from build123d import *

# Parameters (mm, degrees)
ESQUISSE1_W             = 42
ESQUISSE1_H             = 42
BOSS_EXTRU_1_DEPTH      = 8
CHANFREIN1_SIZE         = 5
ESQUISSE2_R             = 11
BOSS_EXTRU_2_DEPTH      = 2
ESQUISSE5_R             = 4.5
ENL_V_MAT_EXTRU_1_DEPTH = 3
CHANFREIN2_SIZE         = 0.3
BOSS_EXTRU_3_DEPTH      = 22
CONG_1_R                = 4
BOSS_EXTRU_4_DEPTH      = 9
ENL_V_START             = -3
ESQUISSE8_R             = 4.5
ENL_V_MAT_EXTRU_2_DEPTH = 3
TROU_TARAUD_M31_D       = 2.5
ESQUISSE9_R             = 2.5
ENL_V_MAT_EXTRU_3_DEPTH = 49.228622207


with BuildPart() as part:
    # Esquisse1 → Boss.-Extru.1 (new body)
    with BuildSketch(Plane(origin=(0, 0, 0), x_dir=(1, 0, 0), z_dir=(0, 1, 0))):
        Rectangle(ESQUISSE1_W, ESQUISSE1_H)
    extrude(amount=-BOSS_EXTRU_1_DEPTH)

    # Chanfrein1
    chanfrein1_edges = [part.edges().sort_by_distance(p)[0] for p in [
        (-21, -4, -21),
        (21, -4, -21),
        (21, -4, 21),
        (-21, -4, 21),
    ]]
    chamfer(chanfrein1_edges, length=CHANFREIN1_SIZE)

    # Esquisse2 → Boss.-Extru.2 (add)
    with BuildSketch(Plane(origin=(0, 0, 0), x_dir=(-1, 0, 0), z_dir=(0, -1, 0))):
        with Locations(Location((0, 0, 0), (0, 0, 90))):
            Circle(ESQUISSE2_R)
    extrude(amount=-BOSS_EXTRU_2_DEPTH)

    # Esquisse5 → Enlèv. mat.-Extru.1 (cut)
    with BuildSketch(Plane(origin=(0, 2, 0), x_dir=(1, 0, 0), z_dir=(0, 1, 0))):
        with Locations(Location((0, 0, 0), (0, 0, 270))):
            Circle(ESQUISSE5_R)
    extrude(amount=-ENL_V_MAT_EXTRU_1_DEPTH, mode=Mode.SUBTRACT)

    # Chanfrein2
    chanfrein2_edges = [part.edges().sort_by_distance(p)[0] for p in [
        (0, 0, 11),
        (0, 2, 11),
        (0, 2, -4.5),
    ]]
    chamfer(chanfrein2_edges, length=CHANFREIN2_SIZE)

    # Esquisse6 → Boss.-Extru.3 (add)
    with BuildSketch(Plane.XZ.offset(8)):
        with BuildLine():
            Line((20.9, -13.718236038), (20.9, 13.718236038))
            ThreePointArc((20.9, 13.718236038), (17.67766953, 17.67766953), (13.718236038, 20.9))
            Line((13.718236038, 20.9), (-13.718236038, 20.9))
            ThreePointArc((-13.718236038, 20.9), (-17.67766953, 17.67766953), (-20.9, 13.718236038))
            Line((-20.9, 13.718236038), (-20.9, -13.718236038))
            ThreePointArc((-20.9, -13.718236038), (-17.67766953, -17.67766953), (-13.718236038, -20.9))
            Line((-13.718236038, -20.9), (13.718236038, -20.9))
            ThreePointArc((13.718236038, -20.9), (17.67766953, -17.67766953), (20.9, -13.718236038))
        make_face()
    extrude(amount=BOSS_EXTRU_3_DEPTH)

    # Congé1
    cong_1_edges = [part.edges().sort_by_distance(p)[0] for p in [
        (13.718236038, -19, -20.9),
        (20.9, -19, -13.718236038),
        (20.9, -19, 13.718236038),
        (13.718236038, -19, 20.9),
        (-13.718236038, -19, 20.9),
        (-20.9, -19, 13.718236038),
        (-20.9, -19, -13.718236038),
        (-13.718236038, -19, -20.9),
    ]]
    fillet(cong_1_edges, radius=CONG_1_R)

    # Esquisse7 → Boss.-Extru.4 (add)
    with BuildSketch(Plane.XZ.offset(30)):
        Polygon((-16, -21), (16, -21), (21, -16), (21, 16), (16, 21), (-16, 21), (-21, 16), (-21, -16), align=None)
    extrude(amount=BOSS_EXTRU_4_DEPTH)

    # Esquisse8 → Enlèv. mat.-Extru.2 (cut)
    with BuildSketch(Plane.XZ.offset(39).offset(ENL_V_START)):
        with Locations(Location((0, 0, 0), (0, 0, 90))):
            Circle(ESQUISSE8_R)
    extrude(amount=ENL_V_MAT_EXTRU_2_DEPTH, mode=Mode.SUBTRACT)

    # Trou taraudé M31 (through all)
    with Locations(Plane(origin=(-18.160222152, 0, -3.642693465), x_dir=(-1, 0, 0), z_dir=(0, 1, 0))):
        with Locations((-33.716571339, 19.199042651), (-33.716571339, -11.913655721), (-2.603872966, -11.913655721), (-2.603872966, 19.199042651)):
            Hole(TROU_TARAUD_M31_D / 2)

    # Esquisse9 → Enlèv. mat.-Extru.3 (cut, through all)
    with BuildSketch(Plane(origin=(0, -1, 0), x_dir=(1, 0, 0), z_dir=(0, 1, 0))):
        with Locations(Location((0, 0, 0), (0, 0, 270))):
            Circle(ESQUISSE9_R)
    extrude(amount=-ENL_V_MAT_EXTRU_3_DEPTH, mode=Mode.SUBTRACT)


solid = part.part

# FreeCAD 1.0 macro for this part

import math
import FreeCAD as App
import Part
import Sketcher
Q = App.Units.Quantity


def edges_at(feature, points):
    """Names of the edges that pass closest to the given points."""
    edges = feature.Shape.Edges
    near = lambda p: min(range(len(edges)), key=lambda i: edges[i].distToShape(Part.Vertex(*p))[0])
    return sorted({f"Edge{near(p) + 1}" for p in points})


def add_polygon(sketch, points):
    """Adds a closed chain of lines whose ends are joined by coincident constraints."""
    first, n = sketch.GeometryCount, len(points)
    for a, b in zip(points, points[1:] + points[:1]):
        sketch.addGeometry(Part.LineSegment(App.Vector(*a, 0), App.Vector(*b, 0)), False)
    for i in range(n):
        sketch.addConstraint(Sketcher.Constraint("Coincident", first + i, 2, first + (i + 1) % n, 1))

doc = App.newDocument("Part")
body = doc.addObject("PartDesign::Body", "Body")

sketch1 = body.newObject("Sketcher::SketchObject", "Sketch")
sketch1.AttachmentSupport = (doc.getObject("XZ_Plane"), [""])
sketch1.MapMode = "FlatFace"
add_polygon(sketch1, [(-21, -21), (-21, 21), (21, 21), (21, -21)])
sketch1.addConstraint([
    Sketcher.Constraint("Vertical", 0),
    Sketcher.Constraint("Horizontal", 1),
    Sketcher.Constraint("Vertical", 2),
    Sketcher.Constraint("Horizontal", 3),
    Sketcher.Constraint("Symmetric", 0, 2, 2, 2, -1, 1),
    Sketcher.Constraint("Equal", 3, 0),
    Sketcher.Constraint("DistanceX", 1, 1, 1, 2, Q("42 mm")),
])
pad1 = body.newObject("PartDesign::Pad", "Pad")
pad1.Profile = sketch1
pad1.Length = 8
doc.recompute()

chamfer = body.newObject("PartDesign::Chamfer", "Chamfer")
chamfer.Base = (pad1, edges_at(pad1, [
    (-21, -4, -21),
    (21, -4, -21),
    (21, -4, 21),
    (-21, -4, 21),
]))
chamfer.Size = 5

sketch2 = body.newObject("Sketcher::SketchObject", "Sketch001")
sketch2.AttachmentSupport = (doc.getObject("XZ_Plane"), [""])
sketch2.MapMode = "FlatFace"
sketch2.addGeometry(Part.Circle(App.Vector(0, 0, 0), App.Vector(0, 0, 1), 11), False)
sketch2.addConstraint([
    Sketcher.Constraint("Coincident", 0, 3, -1, 1),
    Sketcher.Constraint("Diameter", 0, Q("22 mm")),
])
pad2 = body.newObject("PartDesign::Pad", "Pad001")
pad2.Profile = sketch2
pad2.Length = 2
pad2.Reversed = True

sketch3 = body.newObject("Sketcher::SketchObject", "Sketch002")
sketch3.AttachmentSupport = (doc.getObject("XZ_Plane"), [""])
sketch3.MapMode = "FlatFace"
sketch3.AttachmentOffset = App.Placement(App.Vector(0, 0, -2), App.Rotation())
sketch3.addGeometry(Part.Circle(App.Vector(0, 0, 0), App.Vector(0, 0, 1), 4.5), False)
sketch3.addConstraint([
    Sketcher.Constraint("Coincident", 0, 3, -1, 1),
    Sketcher.Constraint("Diameter", 0, Q("9 mm")),
])
pocket1 = body.newObject("PartDesign::Pocket", "Pocket")
pocket1.Profile = sketch3
pocket1.Length = 3
pocket1.Reversed = True
doc.recompute()

chamfer2 = body.newObject("PartDesign::Chamfer", "Chamfer001")
chamfer2.Base = (pocket1, edges_at(pocket1, [(0, 0, 11), (0, 2, 11), (0, 2, -4.5)]))
chamfer2.Size = 0.3

sketch4 = body.newObject("Sketcher::SketchObject", "Sketch003")
sketch4.AttachmentSupport = (doc.getObject("XZ_Plane"), [""])
sketch4.MapMode = "FlatFace"
sketch4.AttachmentOffset = App.Placement(App.Vector(0, 0, 8), App.Rotation())
sketch4.addGeometry([
    Part.LineSegment(App.Vector(21, -14, 0), App.Vector(21, 14, 0)),
    Part.ArcOfCircle(Part.Circle(App.Vector(0, 0, 0), App.Vector(0, 0, 1), 25), math.radians(33), math.radians(57)),
    Part.LineSegment(App.Vector(14, 21, 0), App.Vector(-14, 21, 0)),
    Part.ArcOfCircle(Part.Circle(App.Vector(0, 0, 0), App.Vector(0, 0, 1), 25), math.radians(123), math.radians(147)),
    Part.LineSegment(App.Vector(-21, 14, 0), App.Vector(-21, -14, 0)),
    Part.ArcOfCircle(Part.Circle(App.Vector(0, 0, 0), App.Vector(0, 0, 1), 25), math.radians(-147), math.radians(-123)),
    Part.LineSegment(App.Vector(-14, -21, 0), App.Vector(14, -21, 0)),
    Part.ArcOfCircle(Part.Circle(App.Vector(0, 0, 0), App.Vector(0, 0, 1), 25), math.radians(-57), math.radians(-33)),
], False)
sketch4.addConstraint([
    Sketcher.Constraint("Coincident", 0, 2, 1, 1),
    Sketcher.Constraint("Coincident", 1, 2, 2, 1),
    Sketcher.Constraint("Coincident", 2, 2, 3, 1),
    Sketcher.Constraint("Coincident", 3, 2, 4, 1),
    Sketcher.Constraint("Coincident", 4, 2, 5, 1),
    Sketcher.Constraint("Coincident", 5, 2, 6, 1),
    Sketcher.Constraint("Coincident", 6, 2, 7, 1),
    Sketcher.Constraint("Coincident", 7, 2, 0, 1),
    Sketcher.Constraint("Vertical", 0),
    Sketcher.Constraint("Horizontal", 2),
    Sketcher.Constraint("Vertical", 4),
    Sketcher.Constraint("Horizontal", 6),
    Sketcher.Constraint("Coincident", 1, 3, -1, 1),
    Sketcher.Constraint("Coincident", 3, 3, -1, 1),
    Sketcher.Constraint("Coincident", 5, 3, -1, 1),
    Sketcher.Constraint("Coincident", 7, 3, -1, 1),
    Sketcher.Constraint("Equal", 1, 3),
    Sketcher.Constraint("Equal", 3, 5),
    Sketcher.Constraint("Equal", 5, 7),
    Sketcher.Constraint("Horizontal", 0, 2, 3, 2),
    Sketcher.Constraint("Vertical", 2, 2, 5, 2),
    Sketcher.Constraint("Equal", 6, 0),
    Sketcher.Constraint("Radius", 1, Q("25 mm")),
    Sketcher.Constraint("DistanceX", -1, 1, 0, 2, Q("20.9 mm")),
])
pad3 = body.newObject("PartDesign::Pad", "Pad002")
pad3.Profile = sketch4
pad3.Length = 22
doc.recompute()

fillet = body.newObject("PartDesign::Fillet", "Fillet")
fillet.Base = (pad3, edges_at(pad3, [
    (13.718, -19, -20.9),
    (20.9, -19, -13.718),
    (20.9, -19, 13.718),
    (13.718, -19, 20.9),
    (-13.718, -19, 20.9),
    (-20.9, -19, 13.718),
    (-20.9, -19, -13.718),
    (-13.718, -19, -20.9),
]))
fillet.Radius = 4

sketch5 = body.newObject("Sketcher::SketchObject", "Sketch004")
sketch5.AttachmentSupport = (doc.getObject("XZ_Plane"), [""])
sketch5.MapMode = "FlatFace"
sketch5.AttachmentOffset = App.Placement(App.Vector(0, 0, 30), App.Rotation())
add_polygon(sketch5, [(-16, -21), (16, -21), (21, -16), (21, 16), (16, 21), (-16, 21), (-21, 16), (-21, -16)])
sketch5.addConstraint([
    Sketcher.Constraint("Horizontal", 0),
    Sketcher.Constraint("Vertical", 2),
    Sketcher.Constraint("Horizontal", 4),
    Sketcher.Constraint("Vertical", 6),
    Sketcher.Constraint("Symmetric", 0, 2, 4, 2, -1, 1),
    Sketcher.Constraint("Symmetric", 1, 2, 5, 2, -1, 1),
    Sketcher.Constraint("Perpendicular", 1, 3),
    Sketcher.Constraint("Perpendicular", 5, 7),
    Sketcher.Constraint("Horizontal", 2, 2, 5, 2),
    Sketcher.Constraint("Horizontal", 1, 2, 6, 2),
    Sketcher.Constraint("Vertical", 0, 2, 3, 2),
    Sketcher.Constraint("Equal", 4, 2),
    Sketcher.Constraint("DistanceX", 0, 1, 0, 2, Q("32 mm")),
    Sketcher.Constraint("DistanceY", 0, 2, -1, 1, Q("21 mm")),
])
pad4 = body.newObject("PartDesign::Pad", "Pad003")
pad4.Profile = sketch5
pad4.Length = 9

sketch6 = body.newObject("Sketcher::SketchObject", "Sketch005")
sketch6.AttachmentSupport = (doc.getObject("XZ_Plane"), [""])
sketch6.MapMode = "FlatFace"
sketch6.AttachmentOffset = App.Placement(App.Vector(0, 0, 36), App.Rotation())
sketch6.addGeometry(Part.Circle(App.Vector(0, 0, 0), App.Vector(0, 0, 1), 4.5), False)
sketch6.addConstraint([
    Sketcher.Constraint("Coincident", 0, 3, -1, 1),
    Sketcher.Constraint("Diameter", 0, Q("9 mm")),
])
pocket2 = body.newObject("PartDesign::Pocket", "Pocket001")
pocket2.Profile = sketch6
pocket2.Length = 3
pocket2.Reversed = True

sketch7 = body.newObject("Sketcher::SketchObject", "Sketch006")
sketch7.AttachmentSupport = (doc.getObject("XZ_Plane"), [""])
sketch7.MapMode = "FlatFace"
sketch7.addGeometry([
    Part.Circle(App.Vector(15.6, 15.6, 0), App.Vector(0, 0, 1), 1.2),
    Part.Circle(App.Vector(15.6, -15.6, 0), App.Vector(0, 0, 1), 1.2),
    Part.Circle(App.Vector(-15.6, -15.6, 0), App.Vector(0, 0, 1), 1.2),
    Part.Circle(App.Vector(-15.6, 15.6, 0), App.Vector(0, 0, 1), 1.2),
], False)
sketch7.addConstraint([
    Sketcher.Constraint("Equal", 0, 1),
    Sketcher.Constraint("Equal", 1, 2),
    Sketcher.Constraint("Equal", 2, 3),
    Sketcher.Constraint("Symmetric", 0, 3, 2, 3, -1, 1),
    Sketcher.Constraint("Symmetric", 1, 3, 3, 3, -1, 1),
    Sketcher.Constraint("Symmetric", 1, 3, 2, 3, -2),
    Sketcher.Constraint("Diameter", 0, Q("2.5 mm")),
    Sketcher.Constraint("DistanceY", 1, 3, 0, 3, Q("31.112698 mm")),
    Sketcher.Constraint("DistanceX", 2, 3, 1, 3, Q("31.112698 mm")),
])
doc.recompute()
hole = body.newObject("PartDesign::Hole", "Hole")
hole.Profile = sketch7
hole.ThreadType = "None"
hole.Diameter = 2.5
hole.DepthType = "ThroughAll"
hole.Reversed = True

sketch8 = body.newObject("Sketcher::SketchObject", "Sketch007")
sketch8.AttachmentSupport = (doc.getObject("XZ_Plane"), [""])
sketch8.MapMode = "FlatFace"
sketch8.AttachmentOffset = App.Placement(App.Vector(0, 0, 1), App.Rotation())
sketch8.addGeometry(Part.Circle(App.Vector(0, 0, 0), App.Vector(0, 0, 1), 2.5), False)
sketch8.addConstraint([
    Sketcher.Constraint("Coincident", 0, 3, -1, 1),
    Sketcher.Constraint("Diameter", 0, Q("5 mm")),
])
pocket3 = body.newObject("PartDesign::Pocket", "Pocket002")
pocket3.Profile = sketch8
pocket3.Type = "ThroughAll"
pocket3.Reversed = True

doc.recompute()
